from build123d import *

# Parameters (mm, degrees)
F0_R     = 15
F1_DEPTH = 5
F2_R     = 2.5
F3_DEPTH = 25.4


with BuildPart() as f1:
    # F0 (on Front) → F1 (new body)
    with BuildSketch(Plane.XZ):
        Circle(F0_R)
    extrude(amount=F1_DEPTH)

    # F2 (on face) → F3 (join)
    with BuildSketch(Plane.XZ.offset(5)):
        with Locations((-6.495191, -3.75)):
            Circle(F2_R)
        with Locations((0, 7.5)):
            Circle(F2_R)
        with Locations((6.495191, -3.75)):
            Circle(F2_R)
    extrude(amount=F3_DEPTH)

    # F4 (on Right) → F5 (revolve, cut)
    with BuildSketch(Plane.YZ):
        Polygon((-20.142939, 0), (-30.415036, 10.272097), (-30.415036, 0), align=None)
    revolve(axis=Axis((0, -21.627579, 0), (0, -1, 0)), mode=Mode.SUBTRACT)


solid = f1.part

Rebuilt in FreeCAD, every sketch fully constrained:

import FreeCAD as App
import Part
import Sketcher

V = App.Vector
Q = App.Units.Quantity

doc = App.newDocument("Part")
params = doc.addObject("Spreadsheet::Sheet", "Params")
for row, (alias, value) in enumerate([
    ("sketch1_diameter", "30 mm"),
    ("pad1_length", "5 mm"),
    ("sketch2_diameter", "5 mm"),
    ("pad2_length", "25.4 mm"),
    ("groove_angle", "360 deg"),
], start=1):
    params.set(f"A{row}", alias)
    params.set(f"B{row}", "=" + value)
    params.setAlias(f"B{row}", alias)

body = doc.addObject("PartDesign::Body", "Body")

# Sketch on XZ plane
sketch1 = body.newObject("Sketcher::SketchObject", "Sketch")
sketch1.AttachmentSupport = (doc.getObject("XZ_Plane"), [""])
sketch1.MapMode = "FlatFace"
sketch1.addGeometry(Part.Circle(V(0, 0, 0), V(0, 0, 1), 15), False)
sketch1.addConstraint(Sketcher.Constraint("Coincident", 0, 3, -1, 1))
sketch1.addConstraint(Sketcher.Constraint("Diameter", 0, Q("30 mm")))
sketch1.setExpression("Constraints[1]", "Params.sketch1_diameter")
pad1 = body.newObject("PartDesign::Pad", "Pad")
pad1.Profile = sketch1
pad1.setExpression("Length", "Params.pad1_length")

# Sketch on XZ plane
sketch2 = body.newObject("Sketcher::SketchObject", "Sketch001")
sketch2.AttachmentSupport = (doc.getObject("XZ_Plane"), [""])
sketch2.MapMode = "FlatFace"
sketch2.AttachmentOffset = App.Placement(V(0, 0, 5), App.Rotation())
sketch2.addGeometry(Part.Circle(V(-6.5, -3.8, 0), V(0, 0, 1), 2.5), False)
sketch2.addGeometry(Part.Circle(V(0, 7.5, 0), V(0, 0, 1), 2.5), False)
sketch2.addGeometry(Part.Circle(V(6.5, -3.8, 0), V(0, 0, 1), 2.5), False)
sketch2.addConstraint(Sketcher.Constraint("Equal", 0, 1))
sketch2.addConstraint(Sketcher.Constraint("Equal", 1, 2))
sketch2.addConstraint(Sketcher.Constraint("Symmetric", 0, 3, 2, 3, -2))
sketch2.addConstraint(Sketcher.Constraint("PointOnObject", 1, 3, -2))
sketch2.addConstraint(Sketcher.Constraint("Diameter", 0, Q("5 mm")))
sketch2.addConstraint(Sketcher.Constraint("DistanceY", -1, 1, 1, 3, Q("7.5 mm")))
sketch2.addConstraint(Sketcher.Constraint("DistanceY", 0, 3, -1, 1, Q("3.75 mm")))
sketch2.addConstraint(Sketcher.Constraint("DistanceX", 0, 3, -1, 1, Q("6.495191 mm")))
sketch2.setExpression("Constraints[4]", "Params.sketch2_diameter")
pad2 = body.newObject("PartDesign::Pad", "Pad001")
pad2.Profile = sketch2
pad2.setExpression("Length", "Params.pad2_length")

# Sketch on YZ plane
sketch3 = body.newObject("Sketcher::SketchObject", "Sketch002")
sketch3.AttachmentSupport = (doc.getObject("YZ_Plane"), [""])
sketch3.MapMode = "FlatFace"
sketch3.addGeometry(Part.LineSegment(V(-20, 0, 0), V(-30, 10, 0)), False)
sketch3.addGeometry(Part.LineSegment(V(-30, 10, 0), V(-30, 0, 0)), False)
sketch3.addGeometry(Part.LineSegment(V(-30, 0, 0), V(-20, 0, 0)), False)
sketch3.addConstraint(Sketcher.Constraint("Coincident", 0, 2, 1, 1))
sketch3.addConstraint(Sketcher.Constraint("Coincident", 1, 2, 2, 1))
sketch3.addConstraint(Sketcher.Constraint("Coincident", 2, 2, 0, 1))
sketch3.addConstraint(Sketcher.Constraint("Vertical", 1))
sketch3.addConstraint(Sketcher.Constraint("Horizontal", 2))
sketch3.addConstraint(Sketcher.Constraint("PointOnObject", 1, 2, -1))
sketch3.addConstraint(Sketcher.Constraint("Equal", 2, 1))
sketch3.addConstraint(Sketcher.Constraint("Distance", 0, Q("14.526939 mm")))
sketch3.addConstraint(Sketcher.Constraint("DistanceX", 2, 2, -1, 1, Q("20.142939 mm")))
groove = body.newObject("PartDesign::Groove", "Groove")
groove.Profile = sketch3
groove.ReferenceAxis = (sketch3, ["H_Axis"])
groove.setExpression("Angle", "Params.groove_angle")

doc.recompute()
